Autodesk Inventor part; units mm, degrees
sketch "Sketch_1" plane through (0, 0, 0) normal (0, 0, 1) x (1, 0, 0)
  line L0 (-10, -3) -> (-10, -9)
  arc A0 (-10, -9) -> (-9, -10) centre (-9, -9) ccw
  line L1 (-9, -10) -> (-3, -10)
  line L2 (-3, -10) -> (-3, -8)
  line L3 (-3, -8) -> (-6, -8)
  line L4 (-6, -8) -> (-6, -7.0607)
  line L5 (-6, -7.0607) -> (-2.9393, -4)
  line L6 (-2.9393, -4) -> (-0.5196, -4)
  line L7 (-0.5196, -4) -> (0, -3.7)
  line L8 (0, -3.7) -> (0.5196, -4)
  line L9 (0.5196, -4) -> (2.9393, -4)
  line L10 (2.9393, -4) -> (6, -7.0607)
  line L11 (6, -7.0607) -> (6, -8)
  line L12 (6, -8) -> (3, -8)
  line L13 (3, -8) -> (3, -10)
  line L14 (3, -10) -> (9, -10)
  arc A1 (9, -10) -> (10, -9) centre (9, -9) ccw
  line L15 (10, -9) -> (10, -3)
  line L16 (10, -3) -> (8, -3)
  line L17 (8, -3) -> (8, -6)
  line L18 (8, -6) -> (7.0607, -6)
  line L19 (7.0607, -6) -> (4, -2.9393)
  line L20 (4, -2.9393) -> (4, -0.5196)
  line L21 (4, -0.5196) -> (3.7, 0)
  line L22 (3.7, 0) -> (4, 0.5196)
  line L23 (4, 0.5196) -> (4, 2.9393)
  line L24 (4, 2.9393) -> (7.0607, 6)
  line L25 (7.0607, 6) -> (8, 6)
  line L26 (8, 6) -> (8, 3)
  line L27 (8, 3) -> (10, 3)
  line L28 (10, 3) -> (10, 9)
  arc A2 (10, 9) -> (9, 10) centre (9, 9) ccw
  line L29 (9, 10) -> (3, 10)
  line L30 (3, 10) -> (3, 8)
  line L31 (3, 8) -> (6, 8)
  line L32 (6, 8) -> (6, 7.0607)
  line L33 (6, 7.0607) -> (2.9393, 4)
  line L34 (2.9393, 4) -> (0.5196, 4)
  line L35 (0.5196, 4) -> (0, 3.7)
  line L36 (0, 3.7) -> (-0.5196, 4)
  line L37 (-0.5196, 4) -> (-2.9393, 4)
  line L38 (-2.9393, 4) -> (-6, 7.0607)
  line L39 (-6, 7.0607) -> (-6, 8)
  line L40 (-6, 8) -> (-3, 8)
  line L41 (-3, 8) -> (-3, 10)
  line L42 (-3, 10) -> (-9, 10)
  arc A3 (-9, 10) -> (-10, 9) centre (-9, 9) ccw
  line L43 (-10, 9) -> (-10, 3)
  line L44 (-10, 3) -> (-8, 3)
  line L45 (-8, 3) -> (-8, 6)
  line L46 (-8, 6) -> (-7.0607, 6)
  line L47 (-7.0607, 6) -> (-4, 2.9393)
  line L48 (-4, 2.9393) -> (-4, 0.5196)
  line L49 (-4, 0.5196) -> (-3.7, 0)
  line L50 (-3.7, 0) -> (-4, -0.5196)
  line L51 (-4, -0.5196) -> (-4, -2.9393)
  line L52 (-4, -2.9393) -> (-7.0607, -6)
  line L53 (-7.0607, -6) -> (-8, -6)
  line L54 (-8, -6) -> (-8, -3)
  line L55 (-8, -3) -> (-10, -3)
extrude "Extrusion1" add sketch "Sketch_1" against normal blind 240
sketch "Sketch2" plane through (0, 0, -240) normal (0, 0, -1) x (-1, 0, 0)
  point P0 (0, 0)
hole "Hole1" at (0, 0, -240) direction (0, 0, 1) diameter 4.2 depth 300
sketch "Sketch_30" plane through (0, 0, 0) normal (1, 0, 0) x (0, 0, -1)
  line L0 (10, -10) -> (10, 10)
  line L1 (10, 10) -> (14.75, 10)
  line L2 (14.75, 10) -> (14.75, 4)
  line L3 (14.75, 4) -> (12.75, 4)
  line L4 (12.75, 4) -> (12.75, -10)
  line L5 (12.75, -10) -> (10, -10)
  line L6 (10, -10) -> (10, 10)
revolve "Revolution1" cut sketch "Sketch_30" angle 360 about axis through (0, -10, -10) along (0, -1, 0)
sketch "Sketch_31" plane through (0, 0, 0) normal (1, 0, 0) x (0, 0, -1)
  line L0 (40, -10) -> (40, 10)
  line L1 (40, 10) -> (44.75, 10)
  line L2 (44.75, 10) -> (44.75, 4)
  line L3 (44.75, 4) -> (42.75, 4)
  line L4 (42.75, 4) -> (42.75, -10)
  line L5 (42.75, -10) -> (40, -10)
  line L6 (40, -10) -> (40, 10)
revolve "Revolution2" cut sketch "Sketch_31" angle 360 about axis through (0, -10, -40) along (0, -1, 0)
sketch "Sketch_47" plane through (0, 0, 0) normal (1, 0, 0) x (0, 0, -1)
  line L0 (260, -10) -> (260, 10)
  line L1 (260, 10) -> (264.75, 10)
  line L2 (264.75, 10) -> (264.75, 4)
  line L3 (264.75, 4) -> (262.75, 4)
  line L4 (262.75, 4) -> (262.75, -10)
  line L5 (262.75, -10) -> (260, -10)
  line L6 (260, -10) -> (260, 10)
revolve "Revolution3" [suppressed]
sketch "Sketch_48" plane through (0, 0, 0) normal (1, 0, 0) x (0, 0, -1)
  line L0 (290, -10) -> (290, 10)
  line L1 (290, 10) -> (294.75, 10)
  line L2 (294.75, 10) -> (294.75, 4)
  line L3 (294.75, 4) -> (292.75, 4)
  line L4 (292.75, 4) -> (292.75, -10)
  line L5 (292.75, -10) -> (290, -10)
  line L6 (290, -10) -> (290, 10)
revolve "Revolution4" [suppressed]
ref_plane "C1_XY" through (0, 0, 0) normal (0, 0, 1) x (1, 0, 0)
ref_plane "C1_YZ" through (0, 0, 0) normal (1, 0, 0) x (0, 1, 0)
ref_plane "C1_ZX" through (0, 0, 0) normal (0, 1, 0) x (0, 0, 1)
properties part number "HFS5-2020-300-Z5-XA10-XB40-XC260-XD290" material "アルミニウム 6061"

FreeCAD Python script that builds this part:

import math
import FreeCAD as App
import Part
import Sketcher
Q = App.Units.Quantity

doc = App.newDocument("Part")
body = doc.addObject("PartDesign::Body", "Body")

# Sketch on XY plane
sketch1 = doc.addObject("Sketcher::SketchObject", "Sketch")
body.addObject(sketch1)
sketch1.AttachmentSupport = (doc.XY_Plane, [""])
sketch1.MapMode = "FlatFace"
sketch1.addGeometry(Part.LineSegment(App.Vector(-8, -3, 0), App.Vector(-10, -3, 0)), False)
sketch1.addGeometry(Part.LineSegment(App.Vector(-10, -3, 0), App.Vector(-10, -9, 0)), False)
sketch1.addGeometry(Part.ArcOfCircle(Part.Circle(App.Vector(-9, -9, 0), App.Vector(0, 0, 1), 1), math.radians(180), math.radians(270)), False)
sketch1.addGeometry(Part.LineSegment(App.Vector(-9, -10, 0), App.Vector(-3, -10, 0)), False)
sketch1.addGeometry(Part.LineSegment(App.Vector(-3, -10, 0), App.Vector(-3, -8, 0)), False)
sketch1.addGeometry(Part.LineSegment(App.Vector(-3, -8, 0), App.Vector(-6, -8, 0)), False)
sketch1.addGeometry(Part.LineSegment(App.Vector(-6, -8, 0), App.Vector(-6, -7.0607, 0)), False)
sketch1.addGeometry(Part.LineSegment(App.Vector(-6, -7.0607, 0), App.Vector(-2.9393, -4, 0)), False)
sketch1.addGeometry(Part.LineSegment(App.Vector(-2.9393, -4, 0), App.Vector(-0.5196, -4, 0)), False)
sketch1.addGeometry(Part.LineSegment(App.Vector(-0.5196, -4, 0), App.Vector(0, -3.7, 0)), False)
sketch1.addGeometry(Part.LineSegment(App.Vector(0, -3.7, 0), App.Vector(0.5196, -4, 0)), False)
sketch1.addGeometry(Part.LineSegment(App.Vector(0.5196, -4, 0), App.Vector(2.9393, -4, 0)), False)
sketch1.addGeometry(Part.LineSegment(App.Vector(2.9393, -4, 0), App.Vector(6, -7.0607, 0)), False)
sketch1.addGeometry(Part.LineSegment(App.Vector(6, -7.0607, 0), App.Vector(6, -8, 0)), False)
sketch1.addGeometry(Part.LineSegment(App.Vector(6, -8, 0), App.Vector(3, -8, 0)), False)
sketch1.addGeometry(Part.LineSegment(App.Vector(3, -8, 0), App.Vector(3, -10, 0)), False)
sketch1.addGeometry(Part.LineSegment(App.Vector(3, -10, 0), App.Vector(9, -10, 0)), False)
sketch1.addGeometry(Part.ArcOfCircle(Part.Circle(App.Vector(9, -9, 0), App.Vector(0, 0, 1), 1), math.radians(-90), math.radians(0)), False)
sketch1.addGeometry(Part.LineSegment(App.Vector(10, -9, 0), App.Vector(10, -3, 0)), False)
sketch1.addGeometry(Part.LineSegment(App.Vector(10, -3, 0), App.Vector(8, -3, 0)), False)
sketch1.addGeometry(Part.LineSegment(App.Vector(8, -3, 0), App.Vector(8, -6, 0)), False)
sketch1.addGeometry(Part.LineSegment(App.Vector(8, -6, 0), App.Vector(7.0607, -6, 0)), False)
sketch1.addGeometry(Part.LineSegment(App.Vector(7.0607, -6, 0), App.Vector(4, -2.9393, 0)), False)
sketch1.addGeometry(Part.LineSegment(App.Vector(4, -2.9393, 0), App.Vector(4, -0.5196, 0)), False)
sketch1.addGeometry(Part.LineSegment(App.Vector(4, -0.5196, 0), App.Vector(3.7, 0, 0)), False)
sketch1.addGeometry(Part.LineSegment(App.Vector(3.7, 0, 0), App.Vector(4, 0.5196, 0)), False)
sketch1.addGeometry(Part.LineSegment(App.Vector(4, 0.5196, 0), App.Vector(4, 2.9393, 0)), False)
sketch1.addGeometry(Part.LineSegment(App.Vector(4, 2.9393, 0), App.Vector(7.0607, 6, 0)), False)
sketch1.addGeometry(Part.LineSegment(App.Vector(7.0607, 6, 0), App.Vector(8, 6, 0)), False)
sketch1.addGeometry(Part.LineSegment(App.Vector(8, 6, 0), App.Vector(8, 3, 0)), False)
sketch1.addGeometry(Part.LineSegment(App.Vector(8, 3, 0), App.Vector(10, 3, 0)), False)
sketch1.addGeometry(Part.LineSegment(App.Vector(10, 3, 0), App.Vector(10, 9, 0)), False)
sketch1.addGeometry(Part.ArcOfCircle(Part.Circle(App.Vector(9, 9, 0), App.Vector(0, 0, 1), 1), math.radians(0), math.radians(90)), False)
sketch1.addGeometry(Part.LineSegment(App.Vector(9, 10, 0), App.Vector(3, 10, 0)), False)
sketch1.addGeometry(Part.LineSegment(App.Vector(3, 10, 0), App.Vector(3, 8, 0)), False)
sketch1.addGeometry(Part.LineSegment(App.Vector(3, 8, 0), App.Vector(6, 8, 0)), False)
sketch1.addGeometry(Part.LineSegment(App.Vector(6, 8, 0), App.Vector(6, 7.0607, 0)), False)
sketch1.addGeometry(Part.LineSegment(App.Vector(6, 7.0607, 0), App.Vector(2.9393, 4, 0)), False)
sketch1.addGeometry(Part.LineSegment(App.Vector(2.9393, 4, 0), App.Vector(0.5196, 4, 0)), False)
sketch1.addGeometry(Part.LineSegment(App.Vector(0.5196, 4, 0), App.Vector(0, 3.7, 0)), False)
sketch1.addGeometry(Part.LineSegment(App.Vector(0, 3.7, 0), App.Vector(-0.5196, 4, 0)), False)
sketch1.addGeometry(Part.LineSegment(App.Vector(-0.5196, 4, 0), App.Vector(-2.9393, 4, 0)), False)
sketch1.addGeometry(Part.LineSegment(App.Vector(-2.9393, 4, 0), App.Vector(-6, 7.0607, 0)), False)
sketch1.addGeometry(Part.LineSegment(App.Vector(-6, 7.0607, 0), App.Vector(-6, 8, 0)), False)
sketch1.addGeometry(Part.LineSegment(App.Vector(-6, 8, 0), App.Vector(-3, 8, 0)), False)
sketch1.addGeometry(Part.LineSegment(App.Vector(-3, 8, 0), App.Vector(-3, 10, 0)), False)
sketch1.addGeometry(Part.LineSegment(App.Vector(-3, 10, 0), App.Vector(-9, 10, 0)), False)
sketch1.addGeometry(Part.ArcOfCircle(Part.Circle(App.Vector(-9, 9, 0), App.Vector(0, 0, 1), 1), math.radians(90), math.radians(180)), False)
sketch1.addGeometry(Part.LineSegment(App.Vector(-10, 9, 0), App.Vector(-10, 3, 0)), False)
sketch1.addGeometry(Part.LineSegment(App.Vector(-10, 3, 0), App.Vector(-8, 3, 0)), False)
sketch1.addGeometry(Part.LineSegment(App.Vector(-8, 3, 0), App.Vector(-8, 6, 0)), False)
sketch1.addGeometry(Part.LineSegment(App.Vector(-8, 6, 0), App.Vector(-7.0607, 6, 0)), False)
sketch1.addGeometry(Part.LineSegment(App.Vector(-7.0607, 6, 0), App.Vector(-4, 2.9393, 0)), False)
sketch1.addGeometry(Part.LineSegment(App.Vector(-4, 2.9393, 0), App.Vector(-4, 0.5196, 0)), False)
sketch1.addGeometry(Part.LineSegment(App.Vector(-4, 0.5196, 0), App.Vector(-3.7, 0, 0)), False)
sketch1.addGeometry(Part.LineSegment(App.Vector(-3.7, 0, 0), App.Vector(-4, -0.5196, 0)), False)
sketch1.addGeometry(Part.LineSegment(App.Vector(-4, -0.5196, 0), App.Vector(-4, -2.9393, 0)), False)
sketch1.addGeometry(Part.LineSegment(App.Vector(-4, -2.9393, 0), App.Vector(-7.0607, -6, 0)), False)
sketch1.addGeometry(Part.LineSegment(App.Vector(-7.0607, -6, 0), App.Vector(-8, -6, 0)), False)
sketch1.addGeometry(Part.LineSegment(App.Vector(-8, -6, 0), App.Vector(-8, -3, 0)), False)
sketch1.addConstraint(Sketcher.Constraint("Coincident", 0, 2, 1, 1))
sketch1.addConstraint(Sketcher.Constraint("Tangent", 1, 2, 2, 1))
sketch1.addConstraint(Sketcher.Constraint("Tangent", 2, 2, 3, 1))
sketch1.addConstraint(Sketcher.Constraint("Coincident", 3, 2, 4, 1))
sketch1.addConstraint(Sketcher.Constraint("Coincident", 4, 2, 5, 1))
sketch1.addConstraint(Sketcher.Constraint("Coincident", 5, 2, 6, 1))
sketch1.addConstraint(Sketcher.Constraint("Coincident", 6, 2, 7, 1))
sketch1.addConstraint(Sketcher.Constraint("Coincident", 7, 2, 8, 1))
sketch1.addConstraint(Sketcher.Constraint("Coincident", 8, 2, 9, 1))
sketch1.addConstraint(Sketcher.Constraint("Coincident", 9, 2, 10, 1))
sketch1.addConstraint(Sketcher.Constraint("Coincident", 10, 2, 11, 1))
sketch1.addConstraint(Sketcher.Constraint("Coincident", 11, 2, 12, 1))
sketch1.addConstraint(Sketcher.Constraint("Coincident", 12, 2, 13, 1))
sketch1.addConstraint(Sketcher.Constraint("Coincident", 13, 2, 14, 1))
sketch1.addConstraint(Sketcher.Constraint("Coincident", 14, 2, 15, 1))
sketch1.addConstraint(Sketcher.Constraint("Coincident", 15, 2, 16, 1))
sketch1.addConstraint(Sketcher.Constraint("Tangent", 16, 2, 17, 1))
sketch1.addConstraint(Sketcher.Constraint("Tangent", 17, 2, 18, 1))
sketch1.addConstraint(Sketcher.Constraint("Coincident", 18, 2, 19, 1))
sketch1.addConstraint(Sketcher.Constraint("Coincident", 19, 2, 20, 1))
sketch1.addConstraint(Sketcher.Constraint("Coincident", 20, 2, 21, 1))
sketch1.addConstraint(Sketcher.Constraint("Coincident", 21, 2, 22, 1))
sketch1.addConstraint(Sketcher.Constraint("Coincident", 22, 2, 23, 1))
sketch1.addConstraint(Sketcher.Constraint("Coincident", 23, 2, 24, 1))
sketch1.addConstraint(Sketcher.Constraint("Coincident", 24, 2, 25, 1))
sketch1.addConstraint(Sketcher.Constraint("Coincident", 25, 2, 26, 1))
sketch1.addConstraint(Sketcher.Constraint("Coincident", 26, 2, 27, 1))
sketch1.addConstraint(Sketcher.Constraint("Coincident", 27, 2, 28, 1))
sketch1.addConstraint(Sketcher.Constraint("Coincident", 28, 2, 29, 1))
sketch1.addConstraint(Sketcher.Constraint("Coincident", 29, 2, 30, 1))
sketch1.addConstraint(Sketcher.Constraint("Coincident", 30, 2, 31, 1))
sketch1.addConstraint(Sketcher.Constraint("Tangent", 31, 2, 32, 1))
sketch1.addConstraint(Sketcher.Constraint("Tangent", 32, 2, 33, 1))
sketch1.addConstraint(Sketcher.Constraint("Coincident", 33, 2, 34, 1))
sketch1.addConstraint(Sketcher.Constraint("Coincident", 34, 2, 35, 1))
sketch1.addConstraint(Sketcher.Constraint("Coincident", 35, 2, 36, 1))
sketch1.addConstraint(Sketcher.Constraint("Coincident", 36, 2, 37, 1))
sketch1.addConstraint(Sketcher.Constraint("Coincident", 37, 2, 38, 1))
sketch1.addConstraint(Sketcher.Constraint("Coincident", 38, 2, 39, 1))
sketch1.addConstraint(Sketcher.Constraint("Coincident", 39, 2, 40, 1))
sketch1.addConstraint(Sketcher.Constraint("Coincident", 40, 2, 41, 1))
sketch1.addConstraint(Sketcher.Constraint("Coincident", 41, 2, 42, 1))
sketch1.addConstraint(Sketcher.Constraint("Coincident", 42, 2, 43, 1))
sketch1.addConstraint(Sketcher.Constraint("Coincident", 43, 2, 44, 1))
sketch1.addConstraint(Sketcher.Constraint("Coincident", 44, 2, 45, 1))
sketch1.addConstraint(Sketcher.Constraint("Coincident", 45, 2, 46, 1))
sketch1.addConstraint(Sketcher.Constraint("Tangent", 46, 2, 47, 1))
sketch1.addConstraint(Sketcher.Constraint("Tangent", 47, 2, 48, 1))
sketch1.addConstraint(Sketcher.Constraint("Coincident", 48, 2, 49, 1))
sketch1.addConstraint(Sketcher.Constraint("Coincident", 49, 2, 50, 1))
sketch1.addConstraint(Sketcher.Constraint("Coincident", 50, 2, 51, 1))
sketch1.addConstraint(Sketcher.Constraint("Coincident", 51, 2, 52, 1))
sketch1.addConstraint(Sketcher.Constraint("Coincident", 52, 2, 53, 1))
sketch1.addConstraint(Sketcher.Constraint("Coincident", 53, 2, 54, 1))
sketch1.addConstraint(Sketcher.Constraint("Coincident", 54, 2, 55, 1))
sketch1.addConstraint(Sketcher.Constraint("Coincident", 55, 2, 56, 1))
sketch1.addConstraint(Sketcher.Constraint("Coincident", 56, 2, 57, 1))
sketch1.addConstraint(Sketcher.Constraint("Coincident", 57, 2, 58, 1))
sketch1.addConstraint(Sketcher.Constraint("Coincident", 58, 2, 59, 1))
sketch1.addConstraint(Sketcher.Constraint("Coincident", 59, 2, 0, 1))
sketch1.addConstraint(Sketcher.Constraint("Horizontal", 0))
sketch1.addConstraint(Sketcher.Constraint("Vertical", 1))
sketch1.addConstraint(Sketcher.Constraint("Horizontal", 3))
sketch1.addConstraint(Sketcher.Constraint("Vertical", 4))
sketch1.addConstraint(Sketcher.Constraint("Horizontal", 5))
sketch1.addConstraint(Sketcher.Constraint("Vertical", 6))
sketch1.addConstraint(Sketcher.Constraint("Horizontal", 8))
sketch1.addConstraint(Sketcher.Constraint("Horizontal", 11))
sketch1.addConstraint(Sketcher.Constraint("Vertical", 13))
sketch1.addConstraint(Sketcher.Constraint("Horizontal", 14))
sketch1.addConstraint(Sketcher.Constraint("Vertical", 15))
sketch1.addConstraint(Sketcher.Constraint("Horizontal", 16))
sketch1.addConstraint(Sketcher.Constraint("Vertical", 18))
sketch1.addConstraint(Sketcher.Constraint("Horizontal", 19))
sketch1.addConstraint(Sketcher.Constraint("Vertical", 20))
sketch1.addConstraint(Sketcher.Constraint("Horizontal", 21))
sketch1.addConstraint(Sketcher.Constraint("Vertical", 23))
sketch1.addConstraint(Sketcher.Constraint("Vertical", 26))
sketch1.addConstraint(Sketcher.Constraint("Horizontal", 28))
sketch1.addConstraint(Sketcher.Constraint("Vertical", 29))
sketch1.addConstraint(Sketcher.Constraint("Horizontal", 30))
sketch1.addConstraint(Sketcher.Constraint("Vertical", 31))
sketch1.addConstraint(Sketcher.Constraint("Horizontal", 33))
sketch1.addConstraint(Sketcher.Constraint("Vertical", 34))
sketch1.addConstraint(Sketcher.Constraint("Horizontal", 35))
sketch1.addConstraint(Sketcher.Constraint("Vertical", 36))
sketch1.addConstraint(Sketcher.Constraint("Horizontal", 38))
sketch1.addConstraint(Sketcher.Constraint("Horizontal", 41))
sketch1.addConstraint(Sketcher.Constraint("Vertical", 43))
sketch1.addConstraint(Sketcher.Constraint("Horizontal", 44))
sketch1.addConstraint(Sketcher.Constraint("Vertical", 45))
sketch1.addConstraint(Sketcher.Constraint("Horizontal", 46))
sketch1.addConstraint(Sketcher.Constraint("Vertical", 48))
sketch1.addConstraint(Sketcher.Constraint("Horizontal", 49))
sketch1.addConstraint(Sketcher.Constraint("Vertical", 50))
sketch1.addConstraint(Sketcher.Constraint("Horizontal", 51))
sketch1.addConstraint(Sketcher.Constraint("Vertical", 53))
sketch1.addConstraint(Sketcher.Constraint("Vertical", 56))
sketch1.addConstraint(Sketcher.Constraint("Horizontal", 58))
sketch1.addConstraint(Sketcher.Constraint("Vertical", 59))
sketch1.addConstraint(Sketcher.Constraint("Equal", 2, 17))
sketch1.addConstraint(Sketcher.Constraint("Equal", 17, 32))
sketch1.addConstraint(Sketcher.Constraint("Equal", 32, 47))
sketch1.addConstraint(Sketcher.Constraint("Symmetric", 2, 3, 32, 3, -1, 1))
sketch1.addConstraint(Sketcher.Constraint("Symmetric", 17, 3, 47, 3, -1, 1))
sketch1.addConstraint(Sketcher.Constraint("Symmetric", 4, 2, 34, 2, -1, 1))
sketch1.addConstraint(Sketcher.Constraint("Symmetric", 6, 2, 36, 2, -1, 1))
sketch1.addConstraint(Sketcher.Constraint("Symmetric", 7, 2, 37, 2, -1, 1))
sketch1.addConstraint(Sketcher.Constraint("Symmetric", 9, 2, 39, 2, -1, 1))
sketch1.addConstraint(Sketcher.Constraint("Symmetric", 10, 2, 40, 2, -1, 1))
sketch1.addConstraint(Sketcher.Constraint("Symmetric", 12, 2, 42, 2, -1, 1))
sketch1.addConstraint(Sketcher.Constraint("Symmetric", 14, 2, 44, 2, -1, 1))
sketch1.addConstraint(Sketcher.Constraint("Symmetric", 19, 2, 49, 2, -1, 1))
sketch1.addConstraint(Sketcher.Constraint("Symmetric", 21, 2, 51, 2, -1, 1))
sketch1.addConstraint(Sketcher.Constraint("Symmetric", 22, 2, 52, 2, -1, 1))
sketch1.addConstraint(Sketcher.Constraint("Symmetric", 24, 2, 54, 2, -1, 1))
sketch1.addConstraint(Sketcher.Constraint("Symmetric", 25, 2, 55, 2, -1, 1))
sketch1.addConstraint(Sketcher.Constraint("Symmetric", 27, 2, 57, 2, -1, 1))
sketch1.addConstraint(Sketcher.Constraint("Symmetric", 29, 2, 59, 2, -1, 1))
sketch1.addConstraint(Sketcher.Constraint("Symmetric", 2, 3, 17, 3, -2))
sketch1.addConstraint(Sketcher.Constraint("Symmetric", 8, 2, 10, 2, -2))
sketch1.addConstraint(Sketcher.Constraint("Symmetric", 6, 2, 12, 2, -2))
sketch1.addConstraint(Sketcher.Constraint("Symmetric", 4, 2, 14, 2, -2))
sketch1.addConstraint(Sketcher.Constraint("Symmetric", 29, 2, 49, 2, -2))
sketch1.addConstraint(Sketcher.Constraint("Symmetric", 27, 2, 51, 2, -2))
sketch1.addConstraint(Sketcher.Constraint("Symmetric", 26, 2, 52, 2, -2))
sketch1.addConstraint(Sketcher.Constraint("PointOnObject", 9, 2, -2))
sketch1.addConstraint(Sketcher.Constraint("PointOnObject", 24, 2, -1))
sketch1.addConstraint(Sketcher.Constraint("Perpendicular", 7, 12))
sketch1.addConstraint(Sketcher.Constraint("Parallel", 12, 22))
sketch1.addConstraint(Sketcher.Constraint("Perpendicular", 9, 24))
sketch1.addConstraint(Sketcher.Constraint("Perpendicular", 10, 25))
sketch1.addConstraint(Sketcher.Constraint("Perpendicular", 22, 27))
sketch1.addConstraint(Sketcher.Constraint("Perpendicular", 24, 39))
sketch1.addConstraint(Sketcher.Constraint("Perpendicular", 37, 42))
sketch1.addConstraint(Sketcher.Constraint("Perpendicular", 39, 54))
sketch1.addConstraint(Sketcher.Constraint("Perpendicular", 52, 57))
sketch1.addConstraint(Sketcher.Constraint("Equal", 46, 1))
sketch1.addConstraint(Sketcher.Constraint("Equal", 49, 4))
sketch1.addConstraint(Sketcher.Constraint("Equal", 58, 6))
sketch1.addConstraint(Sketcher.Constraint("Equal", 44, 20))
sketch1.addConstraint(Sketcher.Constraint("Equal", 41, 23))
sketch1.addConstraint(Sketcher.Constraint("Equal", 12, 22))
sketch1.addConstraint(Sketcher.Constraint("Equal", 10, 24))
sketch1.addConstraint(Sketcher.Constraint("Radius", 2, 1.0))
sketch1.addConstraint(Sketcher.Constraint("DistanceX", 0, 2, 0, 1, 2.0))
sketch1.addConstraint(Sketcher.Constraint("DistanceX", 3, 1, 3, 2, 6.0))
sketch1.addConstraint(Sketcher.Constraint("DistanceX", 5, 2, 5, 1, 3.0))
sketch1.addConstraint(Sketcher.Constraint("Angle", 9, Q("30.0007 deg")))
sketch1.addConstraint(Sketcher.Constraint("DistanceX", 2, 3, -1, 1, 9.0))
sketch1.addConstraint(Sketcher.Constraint("DistanceY", 7, 2, -1, 1, 4.0))
sketch1.addConstraint(Sketcher.Constraint("Distance", 9, 0.6))
sketch1.addConstraint(Sketcher.Constraint("DistanceX", 8, 1, 8, 2, 2.4197))
pad1 = doc.addObject("PartDesign::Pad", "Pad")
body.addObject(pad1)
pad1.Profile = sketch1
pad1.Length = 240
pad1.Reversed = True

# Sketch on XY plane
sketch2 = doc.addObject("Sketcher::SketchObject", "Sketch001")
body.addObject(sketch2)
sketch2.AttachmentSupport = (doc.XY_Plane, [""])
sketch2.MapMode = "FlatFace"
sketch2.AttachmentOffset = App.Placement(App.Vector(0, 0, -240), App.Rotation())
sketch2.addGeometry(Part.Circle(App.Vector(0, 0, 0), App.Vector(0, 0, 1), 2.1), False)
sketch2.addConstraint(Sketcher.Constraint("Coincident", 0, 3, -1, 1))
sketch2.addConstraint(Sketcher.Constraint("Diameter", 0, 4.2))
doc.recompute()
hole = doc.addObject("PartDesign::Hole", "Hole")
body.addObject(hole)
hole.Profile = sketch2
hole.ThreadType = "None"
hole.Diameter = 4.2
hole.DepthType = "Dimension"
hole.Depth = 300
hole.DrillPoint = "Flat"
hole.Reversed = True

# Sketch on YZ plane
sketch3 = doc.addObject("Sketcher::SketchObject", "Sketch002")
body.addObject(sketch3)
sketch3.AttachmentSupport = (doc.YZ_Plane, [""])
sketch3.MapMode = "FlatFace"
sketch3.addGeometry(Part.LineSegment(App.Vector(10, -10, 0), App.Vector(-10, -10, 0)), False)
sketch3.addGeometry(Part.LineSegment(App.Vector(-10, -10, 0), App.Vector(-10, -12.75, 0)), False)
sketch3.addGeometry(Part.LineSegment(App.Vector(-10, -12.75, 0), App.Vector(4, -12.75, 0)), False)
sketch3.addGeometry(Part.LineSegment(App.Vector(4, -12.75, 0), App.Vector(4, -14.75, 0)), False)
sketch3.addGeometry(Part.LineSegment(App.Vector(4, -14.75, 0), App.Vector(10, -14.75, 0)), False)
sketch3.addGeometry(Part.LineSegment(App.Vector(10, -14.75, 0), App.Vector(10, -10, 0)), False)
sketch3.addGeometry(Part.LineSegment(App.Vector(10, -10, 0), App.Vector(-10, -10, 0)), True)  # axis
sketch3.addConstraint(Sketcher.Constraint("Coincident", 0, 2, 1, 1))
sketch3.addConstraint(Sketcher.Constraint("Coincident", 1, 2, 2, 1))
sketch3.addConstraint(Sketcher.Constraint("Coincident", 2, 2, 3, 1))
sketch3.addConstraint(Sketcher.Constraint("Coincident", 3, 2, 4, 1))
sketch3.addConstraint(Sketcher.Constraint("Coincident", 4, 2, 5, 1))
sketch3.addConstraint(Sketcher.Constraint("Coincident", 5, 2, 0, 1))
sketch3.addConstraint(Sketcher.Constraint("Horizontal", 0))
sketch3.addConstraint(Sketcher.Constraint("Vertical", 1))
sketch3.addConstraint(Sketcher.Constraint("Horizontal", 2))
sketch3.addConstraint(Sketcher.Constraint("Vertical", 3))
sketch3.addConstraint(Sketcher.Constraint("Horizontal", 4))
sketch3.addConstraint(Sketcher.Constraint("Vertical", 5))
sketch3.addConstraint(Sketcher.Constraint("Horizontal", 6))
sketch3.addConstraint(Sketcher.Constraint("Coincident", 6, 1, 5, 2))
sketch3.addConstraint(Sketcher.Constraint("Vertical", 1, 2, 6, 2))
sketch3.addConstraint(Sketcher.Constraint("DistanceX", 0, 2, 0, 1, 20.0))
sketch3.addConstraint(Sketcher.Constraint("DistanceX", 2, 1, 2, 2, 14.0))
sketch3.addConstraint(Sketcher.Constraint("DistanceY", 3, 2, 3, 1, 2.0))
sketch3.addConstraint(Sketcher.Constraint("DistanceX", 0, 2, -1, 1, 10.0))
sketch3.addConstraint(Sketcher.Constraint("DistanceY", 0, 2, -1, 1, 10.0))
sketch3.addConstraint(Sketcher.Constraint("DistanceY", 1, 2, 1, 1, 2.75))
groove = doc.addObject("PartDesign::Groove", "Groove")
body.addObject(groove)
groove.Profile = sketch3
groove.ReferenceAxis = (sketch3, ["Axis0"])
groove.Angle = 360

# Sketch on YZ plane
sketch4 = doc.addObject("Sketcher::SketchObject", "Sketch003")
body.addObject(sketch4)
sketch4.AttachmentSupport = (doc.YZ_Plane, [""])
sketch4.MapMode = "FlatFace"
sketch4.addGeometry(Part.LineSegment(App.Vector(10, -40, 0), App.Vector(-10, -40, 0)), False)
sketch4.addGeometry(Part.LineSegment(App.Vector(-10, -40, 0), App.Vector(-10, -42.75, 0)), False)
sketch4.addGeometry(Part.LineSegment(App.Vector(-10, -42.75, 0), App.Vector(4, -42.75, 0)), False)
sketch4.addGeometry(Part.LineSegment(App.Vector(4, -42.75, 0), App.Vector(4, -44.75, 0)), False)
sketch4.addGeometry(Part.LineSegment(App.Vector(4, -44.75, 0), App.Vector(10, -44.75, 0)), False)
sketch4.addGeometry(Part.LineSegment(App.Vector(10, -44.75, 0), App.Vector(10, -40, 0)), False)
sketch4.addGeometry(Part.LineSegment(App.Vector(10, -40, 0), App.Vector(-10, -40, 0)), True)  # axis
sketch4.addConstraint(Sketcher.Constraint("Coincident", 0, 2, 1, 1))
sketch4.addConstraint(Sketcher.Constraint("Coincident", 1, 2, 2, 1))
sketch4.addConstraint(Sketcher.Constraint("Coincident", 2, 2, 3, 1))
sketch4.addConstraint(Sketcher.Constraint("Coincident", 3, 2, 4, 1))
sketch4.addConstraint(Sketcher.Constraint("Coincident", 4, 2, 5, 1))
sketch4.addConstraint(Sketcher.Constraint("Coincident", 5, 2, 0, 1))
sketch4.addConstraint(Sketcher.Constraint("Horizontal", 0))
sketch4.addConstraint(Sketcher.Constraint("Vertical", 1))
sketch4.addConstraint(Sketcher.Constraint("Horizontal", 2))
sketch4.addConstraint(Sketcher.Constraint("Vertical", 3))
sketch4.addConstraint(Sketcher.Constraint("Horizontal", 4))
sketch4.addConstraint(Sketcher.Constraint("Vertical", 5))
sketch4.addConstraint(Sketcher.Constraint("Horizontal", 6))
sketch4.addConstraint(Sketcher.Constraint("Coincident", 6, 1, 5, 2))
sketch4.addConstraint(Sketcher.Constraint("Vertical", 1, 2, 6, 2))
sketch4.addConstraint(Sketcher.Constraint("DistanceX", 0, 2, 0, 1, 20.0))
sketch4.addConstraint(Sketcher.Constraint("DistanceX", 2, 1, 2, 2, 14.0))
sketch4.addConstraint(Sketcher.Constraint("DistanceY", 3, 2, 3, 1, 2.0))
sketch4.addConstraint(Sketcher.Constraint("DistanceX", 0, 2, -1, 1, 10.0))
sketch4.addConstraint(Sketcher.Constraint("DistanceY", 0, 2, -1, 1, 40.0))
sketch4.addConstraint(Sketcher.Constraint("DistanceY", 1, 2, 1, 1, 2.75))
groove2 = doc.addObject("PartDesign::Groove", "Groove001")
body.addObject(groove2)
groove2.Profile = sketch4
groove2.ReferenceAxis = (sketch4, ["Axis0"])
groove2.Angle = 360

doc.recompute()
